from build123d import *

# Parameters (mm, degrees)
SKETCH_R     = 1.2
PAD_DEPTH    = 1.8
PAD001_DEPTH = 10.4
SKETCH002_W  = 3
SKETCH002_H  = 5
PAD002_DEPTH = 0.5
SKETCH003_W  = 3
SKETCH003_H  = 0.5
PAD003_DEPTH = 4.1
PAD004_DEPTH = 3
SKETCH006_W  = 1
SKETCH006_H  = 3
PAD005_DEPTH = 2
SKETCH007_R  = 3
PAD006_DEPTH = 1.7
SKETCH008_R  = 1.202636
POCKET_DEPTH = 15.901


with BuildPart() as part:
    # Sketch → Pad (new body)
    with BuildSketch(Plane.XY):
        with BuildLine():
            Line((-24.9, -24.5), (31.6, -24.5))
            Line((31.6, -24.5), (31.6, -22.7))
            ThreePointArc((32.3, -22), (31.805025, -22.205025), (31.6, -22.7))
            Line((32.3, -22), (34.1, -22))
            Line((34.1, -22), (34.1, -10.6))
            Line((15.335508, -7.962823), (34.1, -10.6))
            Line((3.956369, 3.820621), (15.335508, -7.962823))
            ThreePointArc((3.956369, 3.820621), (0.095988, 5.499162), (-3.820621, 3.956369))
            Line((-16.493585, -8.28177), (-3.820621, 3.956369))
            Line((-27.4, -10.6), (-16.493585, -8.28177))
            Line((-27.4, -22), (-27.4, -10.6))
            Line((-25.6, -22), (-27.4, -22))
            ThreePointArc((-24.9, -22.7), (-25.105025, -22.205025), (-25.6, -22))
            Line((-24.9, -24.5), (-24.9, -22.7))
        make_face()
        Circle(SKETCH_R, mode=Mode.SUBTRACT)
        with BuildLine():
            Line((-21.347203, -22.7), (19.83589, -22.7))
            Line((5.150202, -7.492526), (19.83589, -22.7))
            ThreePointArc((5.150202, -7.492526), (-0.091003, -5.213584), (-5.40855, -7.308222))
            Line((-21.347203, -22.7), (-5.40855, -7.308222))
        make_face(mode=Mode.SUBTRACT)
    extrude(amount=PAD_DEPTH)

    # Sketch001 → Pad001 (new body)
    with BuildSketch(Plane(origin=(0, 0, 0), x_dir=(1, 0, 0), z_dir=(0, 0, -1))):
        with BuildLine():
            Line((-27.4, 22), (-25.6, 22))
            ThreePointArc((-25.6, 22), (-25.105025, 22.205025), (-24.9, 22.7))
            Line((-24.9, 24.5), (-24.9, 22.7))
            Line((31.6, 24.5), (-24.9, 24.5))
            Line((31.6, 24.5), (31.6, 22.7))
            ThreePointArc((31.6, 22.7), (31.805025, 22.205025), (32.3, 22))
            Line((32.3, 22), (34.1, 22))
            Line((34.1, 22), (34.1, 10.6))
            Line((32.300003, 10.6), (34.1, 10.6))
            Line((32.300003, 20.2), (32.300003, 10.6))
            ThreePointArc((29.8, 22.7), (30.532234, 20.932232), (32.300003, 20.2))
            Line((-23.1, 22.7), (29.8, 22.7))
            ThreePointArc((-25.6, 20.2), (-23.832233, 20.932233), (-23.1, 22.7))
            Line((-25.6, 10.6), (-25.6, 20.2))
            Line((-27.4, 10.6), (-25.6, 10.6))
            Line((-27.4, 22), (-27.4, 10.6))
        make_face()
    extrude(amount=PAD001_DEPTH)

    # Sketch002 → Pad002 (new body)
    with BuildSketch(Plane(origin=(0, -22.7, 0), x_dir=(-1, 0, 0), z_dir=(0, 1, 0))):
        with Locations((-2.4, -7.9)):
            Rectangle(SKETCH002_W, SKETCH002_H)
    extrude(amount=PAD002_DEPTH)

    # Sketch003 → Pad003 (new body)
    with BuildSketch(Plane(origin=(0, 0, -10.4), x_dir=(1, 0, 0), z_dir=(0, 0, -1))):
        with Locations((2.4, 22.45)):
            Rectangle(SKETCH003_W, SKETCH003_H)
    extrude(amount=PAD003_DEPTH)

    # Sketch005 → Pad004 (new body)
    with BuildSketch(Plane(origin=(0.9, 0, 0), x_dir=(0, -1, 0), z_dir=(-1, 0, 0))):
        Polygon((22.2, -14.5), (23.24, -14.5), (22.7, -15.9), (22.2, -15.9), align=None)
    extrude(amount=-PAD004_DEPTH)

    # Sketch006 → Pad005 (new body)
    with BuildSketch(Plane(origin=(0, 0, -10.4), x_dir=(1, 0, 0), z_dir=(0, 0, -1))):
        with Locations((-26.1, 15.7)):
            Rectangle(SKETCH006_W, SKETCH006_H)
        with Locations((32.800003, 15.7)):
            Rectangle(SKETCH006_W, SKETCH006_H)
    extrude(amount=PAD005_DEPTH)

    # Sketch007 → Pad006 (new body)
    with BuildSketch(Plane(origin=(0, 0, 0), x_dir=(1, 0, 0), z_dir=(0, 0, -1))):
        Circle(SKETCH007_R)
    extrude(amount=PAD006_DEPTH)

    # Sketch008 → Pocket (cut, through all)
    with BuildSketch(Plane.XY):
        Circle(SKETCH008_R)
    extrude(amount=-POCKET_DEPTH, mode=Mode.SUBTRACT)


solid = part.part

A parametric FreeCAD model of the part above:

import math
import FreeCAD as App
import Part
import Sketcher
Q = App.Units.Quantity

doc = App.newDocument("Part")
body = doc.addObject("PartDesign::Body", "Body")

# Sketch on XY plane
sketch1 = body.newObject("Sketcher::SketchObject", "Sketch")
sketch1.AttachmentSupport = (doc.getObject("XY_Plane"), [""])
sketch1.MapMode = "FlatFace"
sketch1.addGeometry([
    Part.LineSegment(App.Vector(-24.9, -24.5, 0), App.Vector(31.6, -24.5, 0)),  # 0
    Part.LineSegment(App.Vector(31.6, -24.5, 0), App.Vector(31.6, -22.7, 0)),  # 1
    Part.ArcOfCircle(Part.Circle(App.Vector(32.299999, -22.699999, 0), App.Vector(0, 0, 1), 0.699999), math.radians(89.999929), math.radians(180.000071)),  # 2
    Part.LineSegment(App.Vector(32.3, -22, 0), App.Vector(34.1, -22, 0)),  # 3
    Part.LineSegment(App.Vector(34.1, -22, 0), App.Vector(34.1, -10.6, 0)),  # 4
    Part.LineSegment(App.Vector(34.1, -10.6, 0), App.Vector(15.335508, -7.962823, 0)),  # 5
    Part.LineSegment(App.Vector(15.335508, -7.962823, 0), App.Vector(3.956369, 3.820621, 0)),  # 6
    Part.ArcOfCircle(Part.Circle(App.Vector(0, -0.000001, 0), App.Vector(0, 0, 1), 5.500001), math.radians(44.000008), math.radians(133.99999)),  # 7
    Part.LineSegment(App.Vector(-3.820621, 3.956369, 0), App.Vector(-16.493585, -8.28177, 0)),  # 8
    Part.LineSegment(App.Vector(-16.493585, -8.28177, 0), App.Vector(-27.4, -10.6, 0)),  # 9
    Part.LineSegment(App.Vector(-27.4, -10.6, 0), App.Vector(-27.4, -22, 0)),  # 10
    Part.LineSegment(App.Vector(-27.4, -22, 0), App.Vector(-25.6, -22, 0)),  # 11
    Part.ArcOfCircle(Part.Circle(App.Vector(-25.599999, -22.699999, 0), App.Vector(0, 0, 1), 0.699999), math.radians(-0.000071), math.radians(90.000071)),  # 12
    Part.LineSegment(App.Vector(-24.9, -22.7, 0), App.Vector(-24.9, -24.5, 0)),  # 13
    Part.LineSegment(App.Vector(19.83589, -22.7, 0), App.Vector(-21.347203, -22.7, 0)),  # 14
    Part.LineSegment(App.Vector(-21.347203, -22.7, 0), App.Vector(-5.40855, -7.308222, 0)),  # 15
    Part.ArcOfCircle(Part.Circle(App.Vector(-0.221326, -12.679747, 0), App.Vector(0, 0, 1), 7.4673), math.radians(43.999982), math.radians(134.000014)),  # 16
    Part.LineSegment(App.Vector(5.150202, -7.492526, 0), App.Vector(19.83589, -22.7, 0)),  # 17
    Part.Circle(App.Vector(0, 0, 0), App.Vector(0, 0, 1), 1.2),  # 18
], False)
sketch1.addConstraint([
    Sketcher.Constraint("Coincident", 0, 2, 1, 1),
    Sketcher.Constraint("Tangent", 1, 2, 2, 2),
    Sketcher.Constraint("Tangent", 2, 1, 3, 1),
    Sketcher.Constraint("Coincident", 3, 2, 4, 1),
    Sketcher.Constraint("Coincident", 4, 2, 5, 1),
    Sketcher.Constraint("Coincident", 5, 2, 6, 1),
    Sketcher.Constraint("Tangent", 6, 2, 7, 1),
    Sketcher.Constraint("Tangent", 7, 2, 8, 1),
    Sketcher.Constraint("Coincident", 8, 2, 9, 1),
    Sketcher.Constraint("Coincident", 9, 2, 10, 1),
    Sketcher.Constraint("Coincident", 10, 2, 11, 1),
    Sketcher.Constraint("Tangent", 11, 2, 12, 2),
    Sketcher.Constraint("Tangent", 12, 1, 13, 1),
    Sketcher.Constraint("Coincident", 13, 2, 0, 1),
    Sketcher.Constraint("Coincident", 14, 2, 15, 1),
    Sketcher.Constraint("Tangent", 15, 2, 16, 2),
    Sketcher.Constraint("Tangent", 16, 1, 17, 1),
    Sketcher.Constraint("Coincident", 17, 2, 14, 1),
    Sketcher.Constraint("Horizontal", 0),
    Sketcher.Constraint("Vertical", 1),
    Sketcher.Constraint("Horizontal", 3),
    Sketcher.Constraint("Vertical", 4),
    Sketcher.Constraint("Vertical", 10),
    Sketcher.Constraint("Horizontal", 11),
    Sketcher.Constraint("Vertical", 13),
    Sketcher.Constraint("Horizontal", 14),
    Sketcher.Constraint("Coincident", 7, 3, -1, 1),
    Sketcher.Constraint("Coincident", 18, 3, -1, 1),
    Sketcher.Constraint("Equal", 2, 12),
    Sketcher.Constraint("Perpendicular", 6, 8),
    Sketcher.Constraint("Parallel", 8, 15),
    Sketcher.Constraint("Perpendicular", 15, 17),
    Sketcher.Constraint("Horizontal", 2, 3, 12, 3),
    Sketcher.Constraint("Horizontal", 4, 2, 9, 2),
    Sketcher.Constraint("Horizontal", 12, 1, 14, 2),
    Sketcher.Constraint("Equal", 3, 11),
    Sketcher.Constraint("Equal", 11, 1),
    Sketcher.Constraint("Diameter", 18, Q("2.4 mm")),
    Sketcher.Constraint("Radius", 2, Q("0.699999 mm")),
    Sketcher.Constraint("Radius", 7, Q("5.500001 mm")),
    Sketcher.Constraint("Angle", 5, Q("172.000001 deg")),
    Sketcher.Constraint("Angle", 6, Q("133.999998 deg")),
    Sketcher.Constraint("Angle", 9, Q("-168 deg")),
    Sketcher.Constraint("DistanceX", 0, 1, 0, 2, Q("56.5 mm")),
    Sketcher.Constraint("DistanceX", 3, 1, 3, 2, Q("1.8 mm")),
    Sketcher.Constraint("DistanceY", 4, 1, 4, 2, Q("11.4 mm")),
    Sketcher.Constraint("DistanceY", 2, 1, -1, 1, Q("22 mm")),
    Sketcher.Constraint("DistanceX", -1, 1, 2, 3, Q("32.299999 mm")),
    Sketcher.Constraint("Radius", 16, Q("7.4673 mm")),
    Sketcher.Constraint("DistanceX", 14, 2, 14, 1, Q("41.183093 mm")),
    Sketcher.Constraint("DistanceX", 15, 2, -1, 1, Q("5.40855 mm")),
])
pad1 = body.newObject("PartDesign::Pad", "Pad")
pad1.Profile = sketch1
pad1.Length = 1.8

# Sketch on XY plane
sketch2 = body.newObject("Sketcher::SketchObject", "Sketch001")
sketch2.AttachmentSupport = (doc.getObject("XY_Plane"), [""])
sketch2.MapMode = "FlatFace"
sketch2.addGeometry([
    Part.LineSegment(App.Vector(-25.6, -22, 0), App.Vector(-27.4, -22, 0)),  # 0
    Part.LineSegment(App.Vector(-27.4, -22, 0), App.Vector(-27.4, -10.6, 0)),  # 1
    Part.LineSegment(App.Vector(-27.4, -10.6, 0), App.Vector(-25.6, -10.6, 0)),  # 2
    Part.LineSegment(App.Vector(-25.6, -10.6, 0), App.Vector(-25.6, -20.2, 0)),  # 3
    Part.ArcOfCircle(Part.Circle(App.Vector(-25.6, -22.7, 0), App.Vector(0, 0, 1), 2.5), math.radians(-0.000004), math.radians(90.000004)),  # 4
    Part.LineSegment(App.Vector(-23.1, -22.7, 0), App.Vector(29.8, -22.7, 0)),  # 5
    Part.ArcOfCircle(Part.Circle(App.Vector(32.3, -22.7, 0), App.Vector(0, 0, 1), 2.5), math.radians(89.999928), math.radians(180.000004)),  # 6
    Part.LineSegment(App.Vector(32.300003, -20.2, 0), App.Vector(32.300003, -10.6, 0)),  # 7
    Part.LineSegment(App.Vector(32.300003, -10.6, 0), App.Vector(34.1, -10.6, 0)),  # 8
    Part.LineSegment(App.Vector(34.1, -10.6, 0), App.Vector(34.1, -22, 0)),  # 9
    Part.LineSegment(App.Vector(34.1, -22, 0), App.Vector(32.3, -22, 0)),  # 10
    Part.ArcOfCircle(Part.Circle(App.Vector(32.299999, -22.699999, 0), App.Vector(0, 0, 1), 0.699999), math.radians(89.999929), math.radians(180.000071)),  # 11
    Part.LineSegment(App.Vector(31.6, -22.7, 0), App.Vector(31.6, -24.5, 0)),  # 12
    Part.LineSegment(App.Vector(31.6, -24.5, 0), App.Vector(-24.9, -24.5, 0)),  # 13
    Part.LineSegment(App.Vector(-24.9, -24.5, 0), App.Vector(-24.9, -22.7, 0)),  # 14
    Part.ArcOfCircle(Part.Circle(App.Vector(-25.599999, -22.699999, 0), App.Vector(0, 0, 1), 0.699999), math.radians(-0.000071), math.radians(90.000071)),  # 15
], False)
sketch2.addConstraint([
    Sketcher.Constraint("Coincident", 0, 2, 1, 1),
    Sketcher.Constraint("Coincident", 1, 2, 2, 1),
    Sketcher.Constraint("Coincident", 2, 2, 3, 1),
    Sketcher.Constraint("Coincident", 3, 2, 4, 2),
    Sketcher.Constraint("Coincident", 4, 1, 5, 1),
    Sketcher.Constraint("Coincident", 5, 2, 6, 2),
    Sketcher.Constraint("Coincident", 6, 1, 7, 1),
    Sketcher.Constraint("Coincident", 7, 2, 8, 1),
    Sketcher.Constraint("Coincident", 8, 2, 9, 1),
    Sketcher.Constraint("Coincident", 9, 2, 10, 1),
    Sketcher.Constraint("Tangent", 10, 2, 11, 1),
    Sketcher.Constraint("Tangent", 11, 2, 12, 1),
    Sketcher.Constraint("Coincident", 12, 2, 13, 1),
    Sketcher.Constraint("Coincident", 13, 2, 14, 1),
    Sketcher.Constraint("Tangent", 14, 2, 15, 1),
    Sketcher.Constraint("Tangent", 15, 2, 0, 1),
    Sketcher.Constraint("Horizontal", 0),
    Sketcher.Constraint("Vertical", 1),
    Sketcher.Constraint("Horizontal", 2),
    Sketcher.Constraint("Vertical", 3),
    Sketcher.Constraint("Horizontal", 5),
    Sketcher.Constraint("Vertical", 7),
    Sketcher.Constraint("Horizontal", 8),
    Sketcher.Constraint("Vertical", 9),
    Sketcher.Constraint("Horizontal", 10),
    Sketcher.Constraint("Vertical", 12),
    Sketcher.Constraint("Horizontal", 13),
    Sketcher.Constraint("Vertical", 14),
    Sketcher.Constraint("Coincident", 11, 3, 6, 3),
    Sketcher.Constraint("Coincident", 15, 3, 4, 3),
    Sketcher.Constraint("Equal", 4, 6),
    Sketcher.Constraint("Equal", 11, 15),
    Sketcher.Constraint("Horizontal", 4, 3, 6, 3),
    Sketcher.Constraint("Horizontal", 15, 3, 4, 1),
    Sketcher.Constraint("Horizontal", 2, 2, 7, 2),
    Sketcher.Constraint("Vertical", 15, 3, 2, 2),
    Sketcher.Constraint("Equal", 2, 10),
    Sketcher.Constraint("Equal", 10, 12),
    Sketcher.Constraint("Radius", 4, Q("2.5 mm")),
    Sketcher.Constraint("Radius", 11, Q("0.699999 mm")),
    Sketcher.Constraint("DistanceX", 0, 2, 0, 1, Q("1.8 mm")),
    Sketcher.Constraint("DistanceX", 5, 1, 5, 2, Q("52.9 mm")),
    Sketcher.Constraint("DistanceY", 1, 1, 1, 2, Q("11.4 mm")),
    Sketcher.Constraint("DistanceY", 0, 2, -1, 1, Q("22 mm")),
    Sketcher.Constraint("DistanceX", 4, 3, -1, 1, Q("25.6 mm")),
    Sketcher.Constraint("DistanceX", 8, 1, 8, 2, Q("1.799997 mm")),
])
pad2 = body.newObject("PartDesign::Pad", "Pad001")
pad2.Profile = sketch2
pad2.Length = 10.4
pad2.Reversed = True

# Sketch on XZ plane
sketch3 = body.newObject("Sketcher::SketchObject", "Sketch002")
sketch3.AttachmentSupport = (doc.getObject("XZ_Plane"), [""])
sketch3.MapMode = "FlatFace"
sketch3.AttachmentOffset = App.Placement(App.Vector(0, 0, 22.7), App.Rotation())
sketch3.addGeometry([
    Part.LineSegment(App.Vector(3.9, -5.4, 0), App.Vector(3.9, -10.4, 0)),
    Part.LineSegment(App.Vector(3.9, -10.4, 0), App.Vector(0.9, -10.4, 0)),
    Part.LineSegment(App.Vector(0.9, -10.4, 0), App.Vector(0.9, -5.4, 0)),
    Part.LineSegment(App.Vector(0.9, -5.4, 0), App.Vector(3.9, -5.4, 0)),
], False)
sketch3.addConstraint([
    Sketcher.Constraint("Coincident", 0, 2, 1, 1),
    Sketcher.Constraint("Coincident", 1, 2, 2, 1),
    Sketcher.Constraint("Coincident", 2, 2, 3, 1),
    Sketcher.Constraint("Coincident", 3, 2, 0, 1),
    Sketcher.Constraint("Vertical", 0),
    Sketcher.Constraint("Horizontal", 1),
    Sketcher.Constraint("Vertical", 2),
    Sketcher.Constraint("Horizontal", 3),
    Sketcher.Constraint("DistanceX", 1, 2, 1, 1, Q("3 mm")),
    Sketcher.Constraint("DistanceY", 0, 2, 0, 1, Q("5 mm")),
    Sketcher.Constraint("DistanceX", -1, 1, 0, 2, Q("3.9 mm")),
    Sketcher.Constraint("DistanceY", 0, 2, -1, 1, Q("10.4 mm")),
])
pad3 = body.newObject("PartDesign::Pad", "Pad002")
pad3.Profile = sketch3
pad3.Length = 0.5
pad3.Reversed = True

# Sketch on XY plane
sketch4 = body.newObject("Sketcher::SketchObject", "Sketch003")
sketch4.AttachmentSupport = (doc.getObject("XY_Plane"), [""])
sketch4.MapMode = "FlatFace"
sketch4.AttachmentOffset = App.Placement(App.Vector(0, 0, -10.4), App.Rotation())
sketch4.addGeometry([
    Part.LineSegment(App.Vector(0.9, -22.7, 0), App.Vector(0.9, -22.2, 0)),
    Part.LineSegment(App.Vector(0.9, -22.2, 0), App.Vector(3.9, -22.2, 0)),
    Part.LineSegment(App.Vector(3.9, -22.2, 0), App.Vector(3.9, -22.7, 0)),
    Part.LineSegment(App.Vector(3.9, -22.7, 0), App.Vector(0.9, -22.7, 0)),
], False)
sketch4.addConstraint([
    Sketcher.Constraint("Coincident", 0, 2, 1, 1),
    Sketcher.Constraint("Coincident", 1, 2, 2, 1),
    Sketcher.Constraint("Coincident", 2, 2, 3, 1),
    Sketcher.Constraint("Coincident", 3, 2, 0, 1),
    Sketcher.Constraint("Vertical", 0),
    Sketcher.Constraint("Horizontal", 1),
    Sketcher.Constraint("Vertical", 2),
    Sketcher.Constraint("Horizontal", 3),
    Sketcher.Constraint("DistanceX", 1, 1, 1, 2, Q("3 mm")),
    Sketcher.Constraint("DistanceY", 0, 1, 0, 2, Q("0.5 mm")),
    Sketcher.Constraint("DistanceX", -1, 1, 0, 2, Q("0.9 mm")),
    Sketcher.Constraint("DistanceY", 0, 2, -1, 1, Q("22.2 mm")),
])
pad4 = body.newObject("PartDesign::Pad", "Pad003")
pad4.Profile = sketch4
pad4.Length = 4.1
pad4.Reversed = True

# Sketch on YZ plane
sketch5 = body.newObject("Sketcher::SketchObject", "Sketch004")
sketch5.AttachmentSupport = (doc.getObject("YZ_Plane"), [""])
sketch5.MapMode = "FlatFace"
sketch5.AttachmentOffset = App.Placement(App.Vector(0, 0, 0.9), App.Rotation())
sketch5.addGeometry([
    Part.LineSegment(App.Vector(-23.24, -14.5, 0), App.Vector(-22.2, -14.5, 0)),
    Part.LineSegment(App.Vector(-22.2, -14.5, 0), App.Vector(-22.2, -15.9, 0)),
    Part.LineSegment(App.Vector(-22.2, -15.9, 0), App.Vector(-22.7, -15.9, 0)),
    Part.LineSegment(App.Vector(-22.7, -15.9, 0), App.Vector(-23.24, -14.5, 0)),
], False)
sketch5.addConstraint([
    Sketcher.Constraint("Coincident", 0, 2, 1, 1),
    Sketcher.Constraint("Coincident", 1, 2, 2, 1),
    Sketcher.Constraint("Coincident", 2, 2, 3, 1),
    Sketcher.Constraint("Coincident", 3, 2, 0, 1),
    Sketcher.Constraint("Horizontal", 0),
    Sketcher.Constraint("Vertical", 1),
    Sketcher.Constraint("Horizontal", 2),
    Sketcher.Constraint("DistanceX", 2, 2, 2, 1, Q("0.5 mm")),
    Sketcher.Constraint("DistanceY", 1, 2, 1, 1, Q("1.4 mm")),
    Sketcher.Constraint("DistanceX", 0, 1, 0, 2, Q("1.04 mm")),
    Sketcher.Constraint("DistanceX", 0, 2, -1, 1, Q("22.2 mm")),
    Sketcher.Constraint("DistanceY", 0, 2, -1, 1, Q("14.5 mm")),
])
pad5 = body.newObject("PartDesign::Pad", "Pad004")
pad5.Profile = sketch5
pad5.Length = 3

# Sketch on XY plane
sketch6 = body.newObject("Sketcher::SketchObject", "Sketch005")
sketch6.AttachmentSupport = (doc.getObject("XY_Plane"), [""])
sketch6.MapMode = "FlatFace"
sketch6.AttachmentOffset = App.Placement(App.Vector(0, 0, -10.4), App.Rotation())
sketch6.addGeometry([
    Part.LineSegment(App.Vector(-26.6, -17.2, 0), App.Vector(-26.6, -14.2, 0)),  # 0
    Part.LineSegment(App.Vector(-26.6, -14.2, 0), App.Vector(-25.6, -14.2, 0)),  # 1
    Part.LineSegment(App.Vector(-25.6, -14.2, 0), App.Vector(-25.6, -17.2, 0)),  # 2
    Part.LineSegment(App.Vector(-25.6, -17.2, 0), App.Vector(-26.6, -17.2, 0)),  # 3
    Part.LineSegment(App.Vector(32.300003, -17.2, 0), App.Vector(32.300003, -14.2, 0)),  # 4
    Part.LineSegment(App.Vector(32.300003, -14.2, 0), App.Vector(33.300003, -14.2, 0)),  # 5
    Part.LineSegment(App.Vector(33.300003, -14.2, 0), App.Vector(33.300003, -17.2, 0)),  # 6
    Part.LineSegment(App.Vector(33.300003, -17.2, 0), App.Vector(32.300003, -17.2, 0)),  # 7
], False)
sketch6.addConstraint([
    Sketcher.Constraint("Coincident", 0, 2, 1, 1),
    Sketcher.Constraint("Coincident", 1, 2, 2, 1),
    Sketcher.Constraint("Coincident", 2, 2, 3, 1),
    Sketcher.Constraint("Coincident", 3, 2, 0, 1),
    Sketcher.Constraint("Coincident", 4, 2, 5, 1),
    Sketcher.Constraint("Coincident", 5, 2, 6, 1),
    Sketcher.Constraint("Coincident", 6, 2, 7, 1),
    Sketcher.Constraint("Coincident", 7, 2, 4, 1),
    Sketcher.Constraint("Vertical", 0),
    Sketcher.Constraint("Horizontal", 1),
    Sketcher.Constraint("Vertical", 2),
    Sketcher.Constraint("Horizontal", 3),
    Sketcher.Constraint("Vertical", 4),
    Sketcher.Constraint("Horizontal", 5),
    Sketcher.Constraint("Vertical", 6),
    Sketcher.Constraint("Horizontal", 7),
    Sketcher.Constraint("Horizontal", 1, 2, 4, 2),
    Sketcher.Constraint("Horizontal", 3, 2, 6, 2),
    Sketcher.Constraint("Equal", 3, 5),
    Sketcher.Constraint("DistanceX", 1, 1, 1, 2, Q("1 mm")),
    Sketcher.Constraint("DistanceY", 0, 1, 0, 2, Q("3 mm")),
    Sketcher.Constraint("DistanceX", 0, 2, -1, 1, Q("26.6 mm")),
    Sketcher.Constraint("DistanceY", 0, 2, -1, 1, Q("14.2 mm")),
    Sketcher.Constraint("DistanceX", -1, 1, 4, 2, Q("32.300003 mm")),
])
pad6 = body.newObject("PartDesign::Pad", "Pad005")
pad6.Profile = sketch6
pad6.Length = 2
pad6.Reversed = True

# Sketch on XY plane
sketch7 = body.newObject("Sketcher::SketchObject", "Sketch006")
sketch7.AttachmentSupport = (doc.getObject("XY_Plane"), [""])
sketch7.MapMode = "FlatFace"
sketch7.addGeometry(Part.Circle(App.Vector(0, 0, 0), App.Vector(0, 0, 1), 3), False)
sketch7.addConstraint([
    Sketcher.Constraint("Coincident", 0, 3, -1, 1),
    Sketcher.Constraint("Diameter", 0, Q("6 mm")),
])
pad7 = body.newObject("PartDesign::Pad", "Pad006")
pad7.Profile = sketch7
pad7.Length = 1.7
pad7.Reversed = True

# Sketch on XY plane
sketch8 = body.newObject("Sketcher::SketchObject", "Sketch007")
sketch8.AttachmentSupport = (doc.getObject("XY_Plane"), [""])
sketch8.MapMode = "FlatFace"
sketch8.addGeometry(Part.Circle(App.Vector(0, 0, 0), App.Vector(0, 0, 1), 1.202636), False)
sketch8.addConstraint([
    Sketcher.Constraint("Coincident", 0, 3, -1, 1),
    Sketcher.Constraint("Diameter", 0, Q("2.405272 mm")),
])
pocket1 = body.newObject("PartDesign::Pocket", "Pocket")
pocket1.Profile = sketch8
pocket1.Type = "ThroughAll"

doc.recompute()
